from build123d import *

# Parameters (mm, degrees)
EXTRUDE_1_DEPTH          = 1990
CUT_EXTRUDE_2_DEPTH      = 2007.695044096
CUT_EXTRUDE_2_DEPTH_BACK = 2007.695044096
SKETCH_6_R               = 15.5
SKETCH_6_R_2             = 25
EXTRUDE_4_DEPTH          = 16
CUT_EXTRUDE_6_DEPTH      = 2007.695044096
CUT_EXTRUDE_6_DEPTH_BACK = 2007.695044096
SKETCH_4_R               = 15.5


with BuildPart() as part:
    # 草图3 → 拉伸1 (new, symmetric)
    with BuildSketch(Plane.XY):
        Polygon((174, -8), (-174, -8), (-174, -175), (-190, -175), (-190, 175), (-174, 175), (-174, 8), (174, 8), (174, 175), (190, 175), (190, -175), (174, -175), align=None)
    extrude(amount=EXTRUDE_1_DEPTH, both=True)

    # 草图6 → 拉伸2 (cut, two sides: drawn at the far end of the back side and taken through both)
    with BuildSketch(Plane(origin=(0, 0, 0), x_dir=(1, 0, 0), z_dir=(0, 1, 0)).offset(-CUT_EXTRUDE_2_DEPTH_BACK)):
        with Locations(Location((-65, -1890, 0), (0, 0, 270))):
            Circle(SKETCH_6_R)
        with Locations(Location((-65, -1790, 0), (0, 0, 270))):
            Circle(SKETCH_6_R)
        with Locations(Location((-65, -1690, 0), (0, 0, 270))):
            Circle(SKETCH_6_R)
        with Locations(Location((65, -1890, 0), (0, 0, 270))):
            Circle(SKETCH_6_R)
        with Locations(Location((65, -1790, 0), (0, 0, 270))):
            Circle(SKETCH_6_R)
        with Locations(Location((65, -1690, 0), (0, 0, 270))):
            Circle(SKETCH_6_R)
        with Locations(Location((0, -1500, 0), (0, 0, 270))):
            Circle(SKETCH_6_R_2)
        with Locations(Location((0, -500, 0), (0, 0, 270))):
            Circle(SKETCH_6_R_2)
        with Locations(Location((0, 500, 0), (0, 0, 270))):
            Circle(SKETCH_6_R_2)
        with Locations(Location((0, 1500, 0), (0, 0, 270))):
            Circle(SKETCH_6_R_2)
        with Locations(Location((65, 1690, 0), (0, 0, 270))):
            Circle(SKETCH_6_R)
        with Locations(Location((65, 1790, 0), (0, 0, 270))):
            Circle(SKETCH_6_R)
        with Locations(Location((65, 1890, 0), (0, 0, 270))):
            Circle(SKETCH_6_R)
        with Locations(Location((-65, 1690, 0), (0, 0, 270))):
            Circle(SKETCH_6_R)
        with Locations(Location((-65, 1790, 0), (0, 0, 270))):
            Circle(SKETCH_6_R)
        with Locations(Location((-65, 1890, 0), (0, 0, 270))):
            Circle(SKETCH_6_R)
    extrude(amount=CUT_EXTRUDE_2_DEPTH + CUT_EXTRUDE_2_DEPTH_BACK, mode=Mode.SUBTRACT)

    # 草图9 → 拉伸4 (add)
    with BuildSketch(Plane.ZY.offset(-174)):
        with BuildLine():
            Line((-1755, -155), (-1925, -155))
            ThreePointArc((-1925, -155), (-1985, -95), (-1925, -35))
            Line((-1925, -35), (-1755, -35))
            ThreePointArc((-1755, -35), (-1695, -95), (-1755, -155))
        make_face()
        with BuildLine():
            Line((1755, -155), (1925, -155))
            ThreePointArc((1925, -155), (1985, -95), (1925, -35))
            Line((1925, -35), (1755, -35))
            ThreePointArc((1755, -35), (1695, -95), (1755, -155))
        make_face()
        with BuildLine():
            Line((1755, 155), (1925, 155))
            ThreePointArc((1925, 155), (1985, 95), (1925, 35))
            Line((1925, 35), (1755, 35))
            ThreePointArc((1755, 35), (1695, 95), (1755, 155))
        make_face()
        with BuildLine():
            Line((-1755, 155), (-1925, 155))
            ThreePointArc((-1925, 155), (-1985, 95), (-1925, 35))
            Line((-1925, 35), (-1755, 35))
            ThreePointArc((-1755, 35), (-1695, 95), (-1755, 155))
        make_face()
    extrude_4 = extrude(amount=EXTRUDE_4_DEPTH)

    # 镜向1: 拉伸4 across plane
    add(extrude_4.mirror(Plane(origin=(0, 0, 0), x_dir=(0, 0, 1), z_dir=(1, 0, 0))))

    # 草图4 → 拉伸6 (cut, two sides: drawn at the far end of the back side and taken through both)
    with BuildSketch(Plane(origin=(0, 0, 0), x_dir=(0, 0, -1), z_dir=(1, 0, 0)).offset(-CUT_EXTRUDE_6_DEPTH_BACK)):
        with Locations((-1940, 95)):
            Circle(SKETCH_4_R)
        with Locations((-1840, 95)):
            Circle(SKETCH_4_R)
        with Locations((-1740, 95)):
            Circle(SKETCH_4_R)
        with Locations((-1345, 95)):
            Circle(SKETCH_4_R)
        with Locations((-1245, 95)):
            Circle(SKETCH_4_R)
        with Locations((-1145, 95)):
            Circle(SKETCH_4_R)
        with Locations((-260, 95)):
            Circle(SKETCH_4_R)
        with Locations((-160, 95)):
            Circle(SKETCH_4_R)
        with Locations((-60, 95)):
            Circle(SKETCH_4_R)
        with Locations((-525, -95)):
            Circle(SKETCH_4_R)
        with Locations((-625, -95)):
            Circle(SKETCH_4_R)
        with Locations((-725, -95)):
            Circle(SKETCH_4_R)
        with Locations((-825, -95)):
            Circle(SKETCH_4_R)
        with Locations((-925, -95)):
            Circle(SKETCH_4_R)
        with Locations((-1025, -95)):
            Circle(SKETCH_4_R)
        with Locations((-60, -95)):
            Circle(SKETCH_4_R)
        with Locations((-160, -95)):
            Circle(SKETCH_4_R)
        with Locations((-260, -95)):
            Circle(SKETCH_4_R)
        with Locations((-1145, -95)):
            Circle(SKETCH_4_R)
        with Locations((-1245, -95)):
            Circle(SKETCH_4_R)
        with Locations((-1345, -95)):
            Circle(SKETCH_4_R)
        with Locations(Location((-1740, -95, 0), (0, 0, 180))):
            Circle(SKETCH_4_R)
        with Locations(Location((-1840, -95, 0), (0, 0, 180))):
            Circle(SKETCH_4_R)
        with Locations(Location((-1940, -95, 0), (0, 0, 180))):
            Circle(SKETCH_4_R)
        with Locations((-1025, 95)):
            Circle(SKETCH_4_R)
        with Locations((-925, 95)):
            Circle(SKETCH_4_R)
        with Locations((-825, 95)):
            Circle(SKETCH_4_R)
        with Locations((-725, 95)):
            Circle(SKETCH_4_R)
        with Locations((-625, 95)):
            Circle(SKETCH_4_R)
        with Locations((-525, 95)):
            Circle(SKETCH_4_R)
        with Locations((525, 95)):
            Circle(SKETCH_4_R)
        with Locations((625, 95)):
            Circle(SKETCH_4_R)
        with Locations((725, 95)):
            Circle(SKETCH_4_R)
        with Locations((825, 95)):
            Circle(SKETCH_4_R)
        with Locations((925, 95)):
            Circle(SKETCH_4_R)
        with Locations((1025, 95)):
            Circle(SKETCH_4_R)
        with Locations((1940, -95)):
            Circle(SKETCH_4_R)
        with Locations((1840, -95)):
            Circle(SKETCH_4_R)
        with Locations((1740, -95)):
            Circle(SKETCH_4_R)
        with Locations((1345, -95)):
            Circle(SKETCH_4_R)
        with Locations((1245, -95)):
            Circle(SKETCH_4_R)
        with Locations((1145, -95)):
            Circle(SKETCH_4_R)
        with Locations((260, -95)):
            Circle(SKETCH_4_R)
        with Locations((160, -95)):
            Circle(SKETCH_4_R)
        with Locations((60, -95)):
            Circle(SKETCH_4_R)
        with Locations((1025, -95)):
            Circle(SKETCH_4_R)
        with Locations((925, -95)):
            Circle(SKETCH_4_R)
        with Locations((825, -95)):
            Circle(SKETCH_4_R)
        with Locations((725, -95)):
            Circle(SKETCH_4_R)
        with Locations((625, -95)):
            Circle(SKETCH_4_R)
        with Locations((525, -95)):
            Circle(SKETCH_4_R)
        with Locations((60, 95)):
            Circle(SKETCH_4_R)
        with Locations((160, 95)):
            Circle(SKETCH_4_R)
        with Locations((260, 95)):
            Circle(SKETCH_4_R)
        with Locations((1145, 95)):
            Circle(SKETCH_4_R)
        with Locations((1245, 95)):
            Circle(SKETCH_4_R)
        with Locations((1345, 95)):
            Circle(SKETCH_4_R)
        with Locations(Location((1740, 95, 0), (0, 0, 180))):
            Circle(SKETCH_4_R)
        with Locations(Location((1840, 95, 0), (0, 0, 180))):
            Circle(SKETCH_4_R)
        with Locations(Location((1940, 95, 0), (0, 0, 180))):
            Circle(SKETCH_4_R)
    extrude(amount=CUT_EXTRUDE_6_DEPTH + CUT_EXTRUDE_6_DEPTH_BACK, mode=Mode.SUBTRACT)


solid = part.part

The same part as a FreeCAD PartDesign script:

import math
import FreeCAD as App
import Part
import Sketcher

V = App.Vector


def add_polygon(sketch, points):
    """Adds a closed chain of lines whose ends are joined by coincident constraints."""
    first, n = sketch.GeometryCount, len(points)
    for a, b in zip(points, points[1:] + points[:1]):
        sketch.addGeometry(Part.LineSegment(App.Vector(*a, 0), App.Vector(*b, 0)), False)
    for i in range(n):
        sketch.addConstraint(Sketcher.Constraint("Coincident", first + i, 2, first + (i + 1) % n, 1))

doc = App.newDocument("Part")
body = doc.addObject("PartDesign::Body", "Body")

sketch1 = doc.addObject("Sketcher::SketchObject", "Sketch")
body.addObject(sketch1)
sketch1.AttachmentSupport = (doc.XY_Plane, [""])
sketch1.MapMode = "FlatFace"
add_polygon(sketch1, [(-174, -8), (174, -8), (174, -175), (190, -175), (190, 175), (174, 175), (174, 8), (-174, 8), (-174, 175), (-190, 175), (-190, -175), (-174, -175)])
sketch1.addConstraint([
    Sketcher.Constraint("Horizontal", 0),
    Sketcher.Constraint("Vertical", 1),
    Sketcher.Constraint("Horizontal", 2),
    Sketcher.Constraint("Vertical", 3),
    Sketcher.Constraint("Horizontal", 4),
    Sketcher.Constraint("Vertical", 5),
    Sketcher.Constraint("Horizontal", 6),
    Sketcher.Constraint("Vertical", 7),
    Sketcher.Constraint("Horizontal", 8),
    Sketcher.Constraint("Vertical", 9),
    Sketcher.Constraint("Horizontal", 10),
    Sketcher.Constraint("Vertical", 11),
    Sketcher.Constraint("Symmetric", 0, 2, 6, 2, -1, 1),
    Sketcher.Constraint("Symmetric", 2, 2, 8, 2, -1, 1),
    Sketcher.Constraint("Symmetric", 4, 2, 10, 2, -1, 1),
    Sketcher.Constraint("Symmetric", 4, 2, 7, 2, -2),
    Sketcher.Constraint("DistanceX", 0, 1, 0, 2, 348.0),
    Sketcher.Constraint("DistanceX", 2, 1, 2, 2, 16.0),
    Sketcher.Constraint("DistanceY", 1, 2, 1, 1, 167.0),
    Sketcher.Constraint("DistanceY", 3, 1, 3, 2, 350.0),
])
pad1 = doc.addObject("PartDesign::Pad", "Pad")
body.addObject(pad1)
pad1.Profile = sketch1
pad1.Length = 3980
pad1.Midplane = True

sketch2 = doc.addObject("Sketcher::SketchObject", "Sketch001")
body.addObject(sketch2)
sketch2.AttachmentSupport = (doc.XZ_Plane, [""])
sketch2.MapMode = "FlatFace"
sketch2.addGeometry([
    Part.Circle(V(-65, 1890, 0), V(0, 0, 1), 16),
    Part.Circle(V(-65, 1790, 0), V(0, 0, 1), 16),
    Part.Circle(V(-65, 1690, 0), V(0, 0, 1), 16),
    Part.Circle(V(65, 1890, 0), V(0, 0, 1), 16),
    Part.Circle(V(65, 1790, 0), V(0, 0, 1), 16),
    Part.Circle(V(65, 1690, 0), V(0, 0, 1), 16),
    Part.Circle(V(0, 1500, 0), V(0, 0, 1), 25),
    Part.Circle(V(0, 500, 0), V(0, 0, 1), 25),
    Part.Circle(V(0, -500, 0), V(0, 0, 1), 25),
    Part.Circle(V(0, -1500, 0), V(0, 0, 1), 25),
    Part.Circle(V(65, -1690, 0), V(0, 0, 1), 16),
    Part.Circle(V(65, -1790, 0), V(0, 0, 1), 16),
    Part.Circle(V(65, -1890, 0), V(0, 0, 1), 16),
    Part.Circle(V(-65, -1690, 0), V(0, 0, 1), 16),
    Part.Circle(V(-65, -1790, 0), V(0, 0, 1), 16),
    Part.Circle(V(-65, -1890, 0), V(0, 0, 1), 16),
], False)
sketch2.addConstraint([
    Sketcher.Constraint("Equal", 0, 1),
    Sketcher.Constraint("Equal", 1, 2),
    Sketcher.Constraint("Equal", 2, 3),
    Sketcher.Constraint("Equal", 3, 4),
    Sketcher.Constraint("Equal", 4, 5),
    Sketcher.Constraint("Equal", 6, 7),
    Sketcher.Constraint("Equal", 7, 8),
    Sketcher.Constraint("Equal", 8, 9),
    Sketcher.Constraint("Equal", 5, 10),
    Sketcher.Constraint("Equal", 10, 11),
    Sketcher.Constraint("Equal", 11, 12),
    Sketcher.Constraint("Equal", 12, 13),
    Sketcher.Constraint("Equal", 13, 14),
    Sketcher.Constraint("Equal", 14, 15),
    Sketcher.Constraint("Symmetric", 7, 3, 8, 3, -1, 1),
    Sketcher.Constraint("Symmetric", 6, 3, 9, 3, -1, 1),
    Sketcher.Constraint("Symmetric", 2, 3, 10, 3, -1, 1),
    Sketcher.Constraint("Symmetric", 1, 3, 11, 3, -1, 1),
    Sketcher.Constraint("Symmetric", 0, 3, 12, 3, -1, 1),
    Sketcher.Constraint("Symmetric", 5, 3, 13, 3, -1, 1),
    Sketcher.Constraint("Symmetric", 4, 3, 14, 3, -1, 1),
    Sketcher.Constraint("Symmetric", 3, 3, 15, 3, -1, 1),
    Sketcher.Constraint("Symmetric", 0, 3, 3, 3, -2),
    Sketcher.Constraint("Symmetric", 1, 3, 4, 3, -2),
    Sketcher.Constraint("Symmetric", 2, 3, 5, 3, -2),
    Sketcher.Constraint("PointOnObject", 6, 3, -2),
    Sketcher.Constraint("PointOnObject", 7, 3, -2),
    Sketcher.Constraint("Vertical", 0, 3, 1, 3),
    Sketcher.Constraint("Vertical", 1, 3, 2, 3),
    Sketcher.Constraint("Diameter", 0, 31.0),
    Sketcher.Constraint("Diameter", 6, 50.0),
    Sketcher.Constraint("DistanceX", 0, 3, -1, 1, 65.0),
    Sketcher.Constraint("DistanceY", -1, 1, 0, 3, 1890.0),
    Sketcher.Constraint("DistanceY", -1, 1, 1, 3, 1790.0),
    Sketcher.Constraint("DistanceY", -1, 1, 2, 3, 1690.0),
    Sketcher.Constraint("DistanceY", -1, 1, 6, 3, 1500.0),
    Sketcher.Constraint("DistanceY", -1, 1, 7, 3, 500.0),
])
pocket1 = doc.addObject("PartDesign::Pocket", "Pocket")
body.addObject(pocket1)
pocket1.Profile = sketch2
pocket1.Type = "ThroughAll"
pocket1.Midplane = True

sketch3 = doc.addObject("Sketcher::SketchObject", "Sketch002")
body.addObject(sketch3)
sketch3.AttachmentSupport = (doc.YZ_Plane, [""])
sketch3.MapMode = "FlatFace"
sketch3.AttachmentOffset = App.Placement(V(0, 0, 174), App.Rotation())
sketch3.addGeometry([
    Part.LineSegment(V(-155, -1925, 0), V(-155, -1755, 0)),
    Part.ArcOfCircle(Part.Circle(V(-95, -1755, 0), V(0, 0, 1), 60), math.radians(0), math.radians(180)),
    Part.LineSegment(V(-35, -1755, 0), V(-35, -1925, 0)),
    Part.ArcOfCircle(Part.Circle(V(-95, -1925, 0), V(0, 0, 1), 60), math.radians(180), math.radians(360)),
    Part.LineSegment(V(-155, 1755, 0), V(-155, 1925, 0)),
    Part.ArcOfCircle(Part.Circle(V(-95, 1925, 0), V(0, 0, 1), 60), math.radians(0), math.radians(180)),
    Part.LineSegment(V(-35, 1925, 0), V(-35, 1755, 0)),
    Part.ArcOfCircle(Part.Circle(V(-95, 1755, 0), V(0, 0, 1), 60), math.radians(180), math.radians(360)),
    Part.LineSegment(V(155, 1925, 0), V(155, 1755, 0)),
    Part.ArcOfCircle(Part.Circle(V(95, 1755, 0), V(0, 0, 1), 60), math.radians(180), math.radians(360)),
    Part.LineSegment(V(35, 1755, 0), V(35, 1925, 0)),
    Part.ArcOfCircle(Part.Circle(V(95, 1925, 0), V(0, 0, 1), 60), math.radians(0), math.radians(180)),
    Part.LineSegment(V(155, -1755, 0), V(155, -1925, 0)),
    Part.ArcOfCircle(Part.Circle(V(95, -1925, 0), V(0, 0, 1), 60), math.radians(180), math.radians(360)),
    Part.LineSegment(V(35, -1925, 0), V(35, -1755, 0)),
    Part.ArcOfCircle(Part.Circle(V(95, -1755, 0), V(0, 0, 1), 60), math.radians(0), math.radians(180)),
], False)
sketch3.addConstraint([
    Sketcher.Constraint("Tangent", 0, 2, 1, 2),
    Sketcher.Constraint("Tangent", 1, 1, 2, 1),
    Sketcher.Constraint("Tangent", 2, 2, 3, 2),
    Sketcher.Constraint("Tangent", 3, 1, 0, 1),
    Sketcher.Constraint("Tangent", 4, 2, 5, 2),
    Sketcher.Constraint("Tangent", 5, 1, 6, 1),
    Sketcher.Constraint("Tangent", 6, 2, 7, 2),
    Sketcher.Constraint("Tangent", 7, 1, 4, 1),
    Sketcher.Constraint("Tangent", 8, 2, 9, 2),
    Sketcher.Constraint("Tangent", 9, 1, 10, 1),
    Sketcher.Constraint("Tangent", 10, 2, 11, 2),
    Sketcher.Constraint("Tangent", 11, 1, 8, 1),
    Sketcher.Constraint("Tangent", 12, 2, 13, 2),
    Sketcher.Constraint("Tangent", 13, 1, 14, 1),
    Sketcher.Constraint("Tangent", 14, 2, 15, 2),
    Sketcher.Constraint("Tangent", 15, 1, 12, 1),
    Sketcher.Constraint("Vertical", 0),
    Sketcher.Constraint("Vertical", 2),
    Sketcher.Constraint("Vertical", 4),
    Sketcher.Constraint("Vertical", 6),
    Sketcher.Constraint("Vertical", 8),
    Sketcher.Constraint("Vertical", 10),
    Sketcher.Constraint("Vertical", 12),
    Sketcher.Constraint("Vertical", 14),
    Sketcher.Constraint("Equal", 3, 5),
    Sketcher.Constraint("Equal", 7, 9),
    Sketcher.Constraint("Equal", 11, 13),
    Sketcher.Constraint("Symmetric", 1, 3, 9, 3, -1, 1),
    Sketcher.Constraint("Symmetric", 5, 3, 13, 3, -1, 1),
    Sketcher.Constraint("Symmetric", 7, 3, 9, 3, -2),
    Sketcher.Constraint("Horizontal", 5, 3, 11, 3),
    Sketcher.Constraint("Horizontal", 3, 3, 13, 3),
    Sketcher.Constraint("Horizontal", 1, 3, 15, 3),
    Sketcher.Constraint("Radius", 1, 60.0),
    Sketcher.Constraint("DistanceY", 0, 1, 0, 2, 170.0),
    Sketcher.Constraint("DistanceX", 1, 3, -1, 1, 95.0),
    Sketcher.Constraint("DistanceY", 1, 3, -1, 1, 1755.0),
])
pad2 = doc.addObject("PartDesign::Pad", "Pad001")
body.addObject(pad2)
pad2.Profile = sketch3
pad2.Length = 16
pad2.Reversed = True
doc.recompute()

mirrored = doc.addObject("PartDesign::Mirrored", "Mirrored")
body.addObject(mirrored)
mirrored.Originals = [pad2]
mirrored.MirrorPlane = (doc.YZ_Plane, [""])
body.Tip = mirrored

sketch4 = doc.addObject("Sketcher::SketchObject", "Sketch003")
body.addObject(sketch4)
sketch4.AttachmentSupport = (doc.YZ_Plane, [""])
sketch4.MapMode = "FlatFace"
sketch4.addGeometry([
    Part.Circle(V(95, 1940, 0), V(0, 0, 1), 16),
    Part.Circle(V(95, 1840, 0), V(0, 0, 1), 16),
    Part.Circle(V(95, 1740, 0), V(0, 0, 1), 16),
    Part.Circle(V(95, 1345, 0), V(0, 0, 1), 16),
    Part.Circle(V(95, 1245, 0), V(0, 0, 1), 16),
    Part.Circle(V(95, 1145, 0), V(0, 0, 1), 16),
    Part.Circle(V(95, 260, 0), V(0, 0, 1), 16),
    Part.Circle(V(95, 160, 0), V(0, 0, 1), 16),
    Part.Circle(V(95, 60, 0), V(0, 0, 1), 16),
    Part.Circle(V(-95, 525, 0), V(0, 0, 1), 16),
    Part.Circle(V(-95, 625, 0), V(0, 0, 1), 16),
    Part.Circle(V(-95, 725, 0), V(0, 0, 1), 16),
    Part.Circle(V(-95, 825, 0), V(0, 0, 1), 16),
    Part.Circle(V(-95, 925, 0), V(0, 0, 1), 16),
    Part.Circle(V(-95, 1025, 0), V(0, 0, 1), 16),
    Part.Circle(V(-95, 60, 0), V(0, 0, 1), 16),
    Part.Circle(V(-95, 160, 0), V(0, 0, 1), 16),
    Part.Circle(V(-95, 260, 0), V(0, 0, 1), 16),
    Part.Circle(V(-95, 1145, 0), V(0, 0, 1), 16),
    Part.Circle(V(-95, 1245, 0), V(0, 0, 1), 16),
    Part.Circle(V(-95, 1345, 0), V(0, 0, 1), 16),
    Part.Circle(V(-95, 1740, 0), V(0, 0, 1), 16),
    Part.Circle(V(-95, 1840, 0), V(0, 0, 1), 16),
    Part.Circle(V(-95, 1940, 0), V(0, 0, 1), 16),
    Part.Circle(V(95, 1025, 0), V(0, 0, 1), 16),
    Part.Circle(V(95, 925, 0), V(0, 0, 1), 16),
    Part.Circle(V(95, 825, 0), V(0, 0, 1), 16),
    Part.Circle(V(95, 725, 0), V(0, 0, 1), 16),
    Part.Circle(V(95, 625, 0), V(0, 0, 1), 16),
    Part.Circle(V(95, 525, 0), V(0, 0, 1), 16),
    Part.Circle(V(95, -525, 0), V(0, 0, 1), 16),
    Part.Circle(V(95, -625, 0), V(0, 0, 1), 16),
    Part.Circle(V(95, -725, 0), V(0, 0, 1), 16),
    Part.Circle(V(95, -825, 0), V(0, 0, 1), 16),
    Part.Circle(V(95, -925, 0), V(0, 0, 1), 16),
    Part.Circle(V(95, -1025, 0), V(0, 0, 1), 16),
    Part.Circle(V(-95, -1940, 0), V(0, 0, 1), 16),
    Part.Circle(V(-95, -1840, 0), V(0, 0, 1), 16),
    Part.Circle(V(-95, -1740, 0), V(0, 0, 1), 16),
    Part.Circle(V(-95, -1345, 0), V(0, 0, 1), 16),
    Part.Circle(V(-95, -1245, 0), V(0, 0, 1), 16),
    Part.Circle(V(-95, -1145, 0), V(0, 0, 1), 16),
    Part.Circle(V(-95, -260, 0), V(0, 0, 1), 16),
    Part.Circle(V(-95, -160, 0), V(0, 0, 1), 16),
    Part.Circle(V(-95, -60, 0), V(0, 0, 1), 16),
    Part.Circle(V(-95, -1025, 0), V(0, 0, 1), 16),
    Part.Circle(V(-95, -925, 0), V(0, 0, 1), 16),
    Part.Circle(V(-95, -825, 0), V(0, 0, 1), 16),
    Part.Circle(V(-95, -725, 0), V(0, 0, 1), 16),
    Part.Circle(V(-95, -625, 0), V(0, 0, 1), 16),
    Part.Circle(V(-95, -525, 0), V(0, 0, 1), 16),
    Part.Circle(V(95, -60, 0), V(0, 0, 1), 16),
    Part.Circle(V(95, -160, 0), V(0, 0, 1), 16),
    Part.Circle(V(95, -260, 0), V(0, 0, 1), 16),
    Part.Circle(V(95, -1145, 0), V(0, 0, 1), 16),
    Part.Circle(V(95, -1245, 0), V(0, 0, 1), 16),
    Part.Circle(V(95, -1345, 0), V(0, 0, 1), 16),
    Part.Circle(V(95, -1740, 0), V(0, 0, 1), 16),
    Part.Circle(V(95, -1840, 0), V(0, 0, 1), 16),
    Part.Circle(V(95, -1940, 0), V(0, 0, 1), 16),
], False)
sketch4.addConstraint([
    Sketcher.Constraint("Equal", 0, 1),
    Sketcher.Constraint("Equal", 1, 2),
    Sketcher.Constraint("Equal", 2, 3),
    Sketcher.Constraint("Equal", 3, 4),
    Sketcher.Constraint("Equal", 4, 5),
    Sketcher.Constraint("Equal", 5, 6),
    Sketcher.Constraint("Equal", 6, 7),
    Sketcher.Constraint("Equal", 7, 8),
    Sketcher.Constraint("Equal", 8, 9),
    Sketcher.Constraint("Equal", 9, 10),
    Sketcher.Constraint("Equal", 10, 11),
    Sketcher.Constraint("Equal", 11, 12),
    Sketcher.Constraint("Equal", 12, 13),
    Sketcher.Constraint("Equal", 13, 14),
    Sketcher.Constraint("Equal", 14, 15),
    Sketcher.Constraint("Equal", 15, 16),
    Sketcher.Constraint("Equal", 16, 17),
    Sketcher.Constraint("Equal", 17, 18),
    Sketcher.Constraint("Equal", 18, 19),
    Sketcher.Constraint("Equal", 19, 20),
    Sketcher.Constraint("Equal", 20, 21),
    Sketcher.Constraint("Equal", 21, 22),
    Sketcher.Constraint("Equal", 22, 23),
    Sketcher.Constraint("Equal", 23, 24),
    Sketcher.Constraint("Equal", 24, 25),
    Sketcher.Constraint("Equal", 25, 26),
    Sketcher.Constraint("Equal", 26, 27),
    Sketcher.Constraint("Equal", 27, 28),
    Sketcher.Constraint("Equal", 28, 29),
    Sketcher.Constraint("Equal", 29, 30),
    Sketcher.Constraint("Equal", 30, 31),
    Sketcher.Constraint("Equal", 31, 32),
    Sketcher.Constraint("Equal", 32, 33),
    Sketcher.Constraint("Equal", 33, 34),
    Sketcher.Constraint("Equal", 34, 35),
    Sketcher.Constraint("Equal", 35, 36),
    Sketcher.Constraint("Equal", 36, 37),
    Sketcher.Constraint("Equal", 37, 38),
    Sketcher.Constraint("Equal", 38, 39),
    Sketcher.Constraint("Equal", 39, 40),
    Sketcher.Constraint("Equal", 40, 41),
    Sketcher.Constraint("Equal", 41, 42),
    Sketcher.Constraint("Equal", 42, 43),
    Sketcher.Constraint("Equal", 43, 44),
    Sketcher.Constraint("Equal", 44, 45),
    Sketcher.Constraint("Equal", 45, 46),
    Sketcher.Constraint("Equal", 46, 47),
    Sketcher.Constraint("Equal", 47, 48),
    Sketcher.Constraint("Equal", 48, 49),
    Sketcher.Constraint("Equal", 49, 50),
    Sketcher.Constraint("Equal", 50, 51),
    Sketcher.Constraint("Equal", 51, 52),
    Sketcher.Constraint("Equal", 52, 53),
    Sketcher.Constraint("Equal", 53, 54),
    Sketcher.Constraint("Equal", 54, 55),
    Sketcher.Constraint("Equal", 55, 56),
    Sketcher.Constraint("Equal", 56, 57),
    Sketcher.Constraint("Equal", 57, 58),
    Sketcher.Constraint("Equal", 58, 59),
    Sketcher.Constraint("Symmetric", 9, 3, 30, 3, -1, 1),
    Sketcher.Constraint("Symmetric", 10, 3, 31, 3, -1, 1),
    Sketcher.Constraint("Symmetric", 11, 3, 32, 3, -1, 1),
    Sketcher.Constraint("Symmetric", 12, 3, 33, 3, -1, 1),
    Sketcher.Constraint("Symmetric", 13, 3, 34, 3, -1, 1),
    Sketcher.Constraint("Symmetric", 14, 3, 35, 3, -1, 1),
    Sketcher.Constraint("Symmetric", 0, 3, 36, 3, -1, 1),
    Sketcher.Constraint("Symmetric", 1, 3, 37, 3, -1, 1),
    Sketcher.Constraint("Symmetric", 2, 3, 38, 3, -1, 1),
    Sketcher.Constraint("Symmetric", 3, 3, 39, 3, -1, 1),
    Sketcher.Constraint("Symmetric", 4, 3, 40, 3, -1, 1),
    Sketcher.Constraint("Symmetric", 5, 3, 41, 3, -1, 1),
    Sketcher.Constraint("Symmetric", 6, 3, 42, 3, -1, 1),
    Sketcher.Constraint("Symmetric", 7, 3, 43, 3, -1, 1),
    Sketcher.Constraint("Symmetric", 8, 3, 44, 3, -1, 1),
    Sketcher.Constraint("Symmetric", 24, 3, 45, 3, -1, 1),
    Sketcher.Constraint("Symmetric", 25, 3, 46, 3, -1, 1),
    Sketcher.Constraint("Symmetric", 26, 3, 47, 3, -1, 1),
    Sketcher.Constraint("Symmetric", 27, 3, 48, 3, -1, 1),
    Sketcher.Constraint("Symmetric", 28, 3, 49, 3, -1, 1),
    Sketcher.Constraint("Symmetric", 29, 3, 50, 3, -1, 1),
    Sketcher.Constraint("Symmetric", 15, 3, 51, 3, -1, 1),
    Sketcher.Constraint("Symmetric", 16, 3, 52, 3, -1, 1),
    Sketcher.Constraint("Symmetric", 17, 3, 53, 3, -1, 1),
    Sketcher.Constraint("Symmetric", 18, 3, 54, 3, -1, 1),
    Sketcher.Constraint("Symmetric", 19, 3, 55, 3, -1, 1),
    Sketcher.Constraint("Symmetric", 20, 3, 56, 3, -1, 1),
    Sketcher.Constraint("Symmetric", 21, 3, 57, 3, -1, 1),
    Sketcher.Constraint("Symmetric", 22, 3, 58, 3, -1, 1),
    Sketcher.Constraint("Symmetric", 23, 3, 59, 3, -1, 1),
    Sketcher.Constraint("Symmetric", 8, 3, 15, 3, -2),
    Sketcher.Constraint("Symmetric", 7, 3, 16, 3, -2),
    Sketcher.Constraint("Symmetric", 6, 3, 17, 3, -2),
    Sketcher.Constraint("Symmetric", 5, 3, 18, 3, -2),
    Sketcher.Constraint("Symmetric", 4, 3, 19, 3, -2),
    Sketcher.Constraint("Symmetric", 3, 3, 20, 3, -2),
    Sketcher.Constraint("Symmetric", 2, 3, 21, 3, -2),
    Sketcher.Constraint("Symmetric", 1, 3, 22, 3, -2),
    Sketcher.Constraint("Symmetric", 0, 3, 23, 3, -2),
    Sketcher.Constraint("Symmetric", 14, 3, 24, 3, -2),
    Sketcher.Constraint("Symmetric", 13, 3, 25, 3, -2),
    Sketcher.Constraint("Symmetric", 12, 3, 26, 3, -2),
    Sketcher.Constraint("Symmetric", 11, 3, 27, 3, -2),
    Sketcher.Constraint("Symmetric", 10, 3, 28, 3, -2),
    Sketcher.Constraint("Symmetric", 9, 3, 29, 3, -2),
    Sketcher.Constraint("Vertical", 0, 3, 1, 3),
    Sketcher.Constraint("Vertical", 1, 3, 2, 3),
    Sketcher.Constraint("Vertical", 2, 3, 3, 3),
    Sketcher.Constraint("Vertical", 3, 3, 4, 3),
    Sketcher.Constraint("Vertical", 4, 3, 5, 3),
    Sketcher.Constraint("Vertical", 5, 3, 6, 3),
    Sketcher.Constraint("Vertical", 6, 3, 7, 3),
    Sketcher.Constraint("Vertical", 7, 3, 8, 3),
    Sketcher.Constraint("Vertical", 9, 3, 10, 3),
    Sketcher.Constraint("Vertical", 10, 3, 11, 3),
    Sketcher.Constraint("Vertical", 11, 3, 12, 3),
    Sketcher.Constraint("Vertical", 12, 3, 13, 3),
    Sketcher.Constraint("Vertical", 13, 3, 14, 3),
    Sketcher.Constraint("Vertical", 14, 3, 15, 3),
    Sketcher.Constraint("Diameter", 0, 31.0),
    Sketcher.Constraint("DistanceX", -1, 1, 0, 3, 95.0),
    Sketcher.Constraint("DistanceY", -1, 1, 0, 3, 1940.0),
    Sketcher.Constraint("DistanceY", -1, 1, 1, 3, 1840.0),
    Sketcher.Constraint("DistanceY", -1, 1, 2, 3, 1740.0),
    Sketcher.Constraint("DistanceY", -1, 1, 3, 3, 1345.0),
    Sketcher.Constraint("DistanceY", -1, 1, 4, 3, 1245.0),
    Sketcher.Constraint("DistanceY", -1, 1, 5, 3, 1145.0),
    Sketcher.Constraint("DistanceY", -1, 1, 6, 3, 260.0),
    Sketcher.Constraint("DistanceY", -1, 1, 7, 3, 160.0),
    Sketcher.Constraint("DistanceY", -1, 1, 8, 3, 60.0),
    Sketcher.Constraint("DistanceY", -1, 1, 9, 3, 525.0),
    Sketcher.Constraint("DistanceY", -1, 1, 10, 3, 625.0),
    Sketcher.Constraint("DistanceY", -1, 1, 11, 3, 725.0),
    Sketcher.Constraint("DistanceY", -1, 1, 12, 3, 825.0),
    Sketcher.Constraint("DistanceY", -1, 1, 13, 3, 925.0),
    Sketcher.Constraint("DistanceY", -1, 1, 14, 3, 1025.0),
])
pocket2 = doc.addObject("PartDesign::Pocket", "Pocket001")
body.addObject(pocket2)
pocket2.Profile = sketch4
pocket2.Type = "ThroughAll"
pocket2.Midplane = True

doc.recompute()
